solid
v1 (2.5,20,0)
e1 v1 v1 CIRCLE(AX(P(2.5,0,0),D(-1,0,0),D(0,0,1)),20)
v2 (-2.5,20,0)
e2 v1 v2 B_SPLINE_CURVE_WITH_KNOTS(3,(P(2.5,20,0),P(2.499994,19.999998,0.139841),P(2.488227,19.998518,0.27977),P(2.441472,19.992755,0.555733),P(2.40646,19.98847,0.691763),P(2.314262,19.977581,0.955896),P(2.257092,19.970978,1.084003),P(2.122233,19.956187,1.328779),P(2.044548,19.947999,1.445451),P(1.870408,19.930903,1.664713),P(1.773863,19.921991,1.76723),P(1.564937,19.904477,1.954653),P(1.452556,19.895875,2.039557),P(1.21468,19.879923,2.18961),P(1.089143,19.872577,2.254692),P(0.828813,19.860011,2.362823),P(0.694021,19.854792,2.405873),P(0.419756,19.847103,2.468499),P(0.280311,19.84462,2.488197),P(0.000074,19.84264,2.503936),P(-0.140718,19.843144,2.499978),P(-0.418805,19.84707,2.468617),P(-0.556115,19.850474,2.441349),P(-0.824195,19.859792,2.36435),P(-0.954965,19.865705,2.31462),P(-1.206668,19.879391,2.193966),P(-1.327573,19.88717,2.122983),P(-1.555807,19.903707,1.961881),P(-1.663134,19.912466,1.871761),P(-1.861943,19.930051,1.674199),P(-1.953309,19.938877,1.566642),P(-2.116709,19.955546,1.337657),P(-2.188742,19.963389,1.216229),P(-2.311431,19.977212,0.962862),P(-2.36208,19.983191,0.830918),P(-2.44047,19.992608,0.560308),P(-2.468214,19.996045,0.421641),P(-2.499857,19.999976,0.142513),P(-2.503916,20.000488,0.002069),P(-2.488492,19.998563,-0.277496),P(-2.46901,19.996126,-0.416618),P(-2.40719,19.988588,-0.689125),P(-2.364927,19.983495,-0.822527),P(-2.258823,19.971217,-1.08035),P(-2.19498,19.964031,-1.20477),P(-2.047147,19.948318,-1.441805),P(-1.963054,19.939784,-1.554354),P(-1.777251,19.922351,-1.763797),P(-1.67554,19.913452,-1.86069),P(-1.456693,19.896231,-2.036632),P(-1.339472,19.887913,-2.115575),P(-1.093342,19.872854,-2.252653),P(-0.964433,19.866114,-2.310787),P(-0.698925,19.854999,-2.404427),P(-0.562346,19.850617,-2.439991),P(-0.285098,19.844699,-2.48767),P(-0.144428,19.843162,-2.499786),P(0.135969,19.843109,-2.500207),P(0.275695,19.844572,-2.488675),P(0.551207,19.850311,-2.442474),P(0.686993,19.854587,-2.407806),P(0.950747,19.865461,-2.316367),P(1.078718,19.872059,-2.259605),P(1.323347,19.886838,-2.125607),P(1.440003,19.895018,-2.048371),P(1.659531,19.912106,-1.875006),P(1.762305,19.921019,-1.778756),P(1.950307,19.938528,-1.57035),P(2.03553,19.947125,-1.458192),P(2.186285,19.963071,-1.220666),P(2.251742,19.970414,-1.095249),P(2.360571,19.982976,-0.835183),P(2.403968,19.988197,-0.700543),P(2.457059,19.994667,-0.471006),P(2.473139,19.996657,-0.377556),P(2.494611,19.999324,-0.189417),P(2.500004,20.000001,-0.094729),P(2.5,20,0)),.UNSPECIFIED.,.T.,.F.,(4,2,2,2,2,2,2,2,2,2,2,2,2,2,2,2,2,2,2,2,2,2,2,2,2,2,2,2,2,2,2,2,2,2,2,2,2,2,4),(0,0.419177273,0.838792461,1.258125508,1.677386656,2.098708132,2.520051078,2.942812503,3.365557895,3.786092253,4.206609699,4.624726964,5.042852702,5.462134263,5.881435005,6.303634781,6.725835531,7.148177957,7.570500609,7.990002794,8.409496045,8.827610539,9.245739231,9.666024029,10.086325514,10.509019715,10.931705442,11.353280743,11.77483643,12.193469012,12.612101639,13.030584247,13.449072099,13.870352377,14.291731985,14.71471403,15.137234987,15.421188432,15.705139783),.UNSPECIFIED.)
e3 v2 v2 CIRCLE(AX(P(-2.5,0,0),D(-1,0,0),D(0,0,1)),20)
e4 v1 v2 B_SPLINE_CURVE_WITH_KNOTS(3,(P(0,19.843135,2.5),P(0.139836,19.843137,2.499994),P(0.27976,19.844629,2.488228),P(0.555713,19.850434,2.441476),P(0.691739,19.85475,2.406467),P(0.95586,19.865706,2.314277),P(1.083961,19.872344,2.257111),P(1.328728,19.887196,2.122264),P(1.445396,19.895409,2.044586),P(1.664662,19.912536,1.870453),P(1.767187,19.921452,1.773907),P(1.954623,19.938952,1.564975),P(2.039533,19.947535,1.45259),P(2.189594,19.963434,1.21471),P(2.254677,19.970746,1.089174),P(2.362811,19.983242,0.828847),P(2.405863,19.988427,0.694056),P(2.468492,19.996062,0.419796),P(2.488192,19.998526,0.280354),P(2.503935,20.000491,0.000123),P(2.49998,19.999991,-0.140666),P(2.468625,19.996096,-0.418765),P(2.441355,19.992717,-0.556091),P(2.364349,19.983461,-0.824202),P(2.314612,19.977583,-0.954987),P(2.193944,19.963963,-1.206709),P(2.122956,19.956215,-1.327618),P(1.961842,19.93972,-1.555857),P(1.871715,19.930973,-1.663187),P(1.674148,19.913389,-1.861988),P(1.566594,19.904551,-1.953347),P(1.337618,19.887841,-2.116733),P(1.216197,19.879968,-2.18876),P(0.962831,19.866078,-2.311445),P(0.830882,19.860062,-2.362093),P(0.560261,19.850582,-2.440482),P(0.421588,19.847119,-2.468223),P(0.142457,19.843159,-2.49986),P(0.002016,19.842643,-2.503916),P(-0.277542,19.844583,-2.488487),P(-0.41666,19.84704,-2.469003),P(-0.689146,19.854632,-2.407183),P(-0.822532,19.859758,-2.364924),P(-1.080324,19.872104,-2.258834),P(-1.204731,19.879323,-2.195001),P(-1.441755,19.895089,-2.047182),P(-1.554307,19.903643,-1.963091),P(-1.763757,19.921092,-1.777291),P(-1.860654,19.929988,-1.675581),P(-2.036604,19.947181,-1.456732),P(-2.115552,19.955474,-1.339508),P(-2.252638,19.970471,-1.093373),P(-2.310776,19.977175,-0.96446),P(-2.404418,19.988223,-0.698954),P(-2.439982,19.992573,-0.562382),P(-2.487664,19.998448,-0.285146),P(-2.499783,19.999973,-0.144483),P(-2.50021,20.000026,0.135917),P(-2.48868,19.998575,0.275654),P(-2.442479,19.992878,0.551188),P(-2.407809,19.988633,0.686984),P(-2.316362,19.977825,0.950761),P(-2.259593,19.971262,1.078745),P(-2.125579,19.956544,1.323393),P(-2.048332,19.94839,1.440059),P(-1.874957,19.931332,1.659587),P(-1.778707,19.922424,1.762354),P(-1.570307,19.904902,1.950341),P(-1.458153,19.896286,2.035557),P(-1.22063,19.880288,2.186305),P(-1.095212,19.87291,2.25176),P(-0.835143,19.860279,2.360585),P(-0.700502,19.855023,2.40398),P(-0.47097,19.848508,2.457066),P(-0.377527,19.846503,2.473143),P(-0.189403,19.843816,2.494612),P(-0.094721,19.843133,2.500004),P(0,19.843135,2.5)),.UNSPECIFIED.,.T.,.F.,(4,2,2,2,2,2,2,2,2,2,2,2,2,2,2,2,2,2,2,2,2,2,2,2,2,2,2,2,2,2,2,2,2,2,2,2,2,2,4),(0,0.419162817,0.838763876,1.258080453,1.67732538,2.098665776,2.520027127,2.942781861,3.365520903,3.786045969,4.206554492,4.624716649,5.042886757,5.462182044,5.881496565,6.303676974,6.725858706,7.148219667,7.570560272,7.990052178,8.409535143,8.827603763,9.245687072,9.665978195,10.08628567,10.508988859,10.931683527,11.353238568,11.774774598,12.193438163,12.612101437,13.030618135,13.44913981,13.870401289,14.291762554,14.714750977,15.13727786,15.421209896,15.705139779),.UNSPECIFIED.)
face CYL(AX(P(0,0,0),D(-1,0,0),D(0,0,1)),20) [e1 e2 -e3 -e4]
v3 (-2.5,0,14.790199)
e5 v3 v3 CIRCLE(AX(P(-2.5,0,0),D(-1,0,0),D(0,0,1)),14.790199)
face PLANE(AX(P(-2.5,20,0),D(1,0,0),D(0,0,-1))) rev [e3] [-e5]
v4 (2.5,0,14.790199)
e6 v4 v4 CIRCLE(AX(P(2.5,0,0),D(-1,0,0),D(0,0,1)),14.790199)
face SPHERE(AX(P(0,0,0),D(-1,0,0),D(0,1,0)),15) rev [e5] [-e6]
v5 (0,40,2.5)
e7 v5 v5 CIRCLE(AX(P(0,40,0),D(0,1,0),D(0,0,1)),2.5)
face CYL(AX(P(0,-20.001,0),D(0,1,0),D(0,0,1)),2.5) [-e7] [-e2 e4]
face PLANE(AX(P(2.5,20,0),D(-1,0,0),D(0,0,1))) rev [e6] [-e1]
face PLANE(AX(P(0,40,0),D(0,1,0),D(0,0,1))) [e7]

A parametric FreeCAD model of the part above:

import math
import FreeCAD as App
import Part
import Sketcher
from FreeCAD import Vector
Q = App.Units.Quantity

doc = App.newDocument("Part")
body = doc.addObject("PartDesign::Body", "Body")

# Sketch on XY plane
sketch1 = body.newObject("Sketcher::SketchObject", "Sketch")
sketch1.AttachmentSupport = (doc.getObject("XY_Plane"), [""])
sketch1.MapMode = "FlatFace"
sketch1.addGeometry([
    Part.LineSegment(Vector(2, 20, 0), Vector(-2, 20, 0)),
    Part.LineSegment(Vector(-2, 20, 0), Vector(-2, 15, 0)),
    Part.ArcOfCircle(Part.Circle(Vector(0, 0, 0), Vector(0, 0, 1), 15), math.radians(80.41), math.radians(99.59)),
    Part.LineSegment(Vector(2, 15, 0), Vector(2, 20, 0)),
], False)
sketch1.addConstraint([
    Sketcher.Constraint("Coincident", 0, 2, 1, 1),
    Sketcher.Constraint("Coincident", 1, 2, 2, 2),
    Sketcher.Constraint("Coincident", 2, 1, 3, 1),
    Sketcher.Constraint("Coincident", 3, 2, 0, 1),
    Sketcher.Constraint("Horizontal", 0),
    Sketcher.Constraint("Vertical", 1),
    Sketcher.Constraint("Vertical", 3),
    Sketcher.Constraint("Coincident", 2, 3, -1, 1),
    Sketcher.Constraint("Horizontal", 1, 2, 2, 1),
    Sketcher.Constraint("Radius", 2, Q("15 mm")),
    Sketcher.Constraint("DistanceX", 0, 2, 0, 1, Q("5 mm")),
    Sketcher.Constraint("DistanceY", -1, 1, 0, 2, Q("20 mm")),
])
revolution = body.newObject("PartDesign::Revolution", "Revolution")
revolution.Profile = sketch1
revolution.ReferenceAxis = (sketch1, ["H_Axis"])
revolution.Angle = 360

# Sketch on XZ plane
sketch2 = body.newObject("Sketcher::SketchObject", "Sketch001")
sketch2.AttachmentSupport = (doc.getObject("XZ_Plane"), [""])
sketch2.MapMode = "FlatFace"
sketch2.AttachmentOffset = App.Placement(Vector(0, 0, -40), App.Rotation())
sketch2.addGeometry(Part.Circle(Vector(0, 0, 0), Vector(0, 0, 1), 2.5), False)
sketch2.addConstraint([
    Sketcher.Constraint("Coincident", 0, 3, -1, 1),
    Sketcher.Constraint("Diameter", 0, Q("5 mm")),
])
pad1 = body.newObject("PartDesign::Pad", "Pad")
pad1.Profile = sketch2
pad1.Type = "UpToFirst"

doc.recompute()
